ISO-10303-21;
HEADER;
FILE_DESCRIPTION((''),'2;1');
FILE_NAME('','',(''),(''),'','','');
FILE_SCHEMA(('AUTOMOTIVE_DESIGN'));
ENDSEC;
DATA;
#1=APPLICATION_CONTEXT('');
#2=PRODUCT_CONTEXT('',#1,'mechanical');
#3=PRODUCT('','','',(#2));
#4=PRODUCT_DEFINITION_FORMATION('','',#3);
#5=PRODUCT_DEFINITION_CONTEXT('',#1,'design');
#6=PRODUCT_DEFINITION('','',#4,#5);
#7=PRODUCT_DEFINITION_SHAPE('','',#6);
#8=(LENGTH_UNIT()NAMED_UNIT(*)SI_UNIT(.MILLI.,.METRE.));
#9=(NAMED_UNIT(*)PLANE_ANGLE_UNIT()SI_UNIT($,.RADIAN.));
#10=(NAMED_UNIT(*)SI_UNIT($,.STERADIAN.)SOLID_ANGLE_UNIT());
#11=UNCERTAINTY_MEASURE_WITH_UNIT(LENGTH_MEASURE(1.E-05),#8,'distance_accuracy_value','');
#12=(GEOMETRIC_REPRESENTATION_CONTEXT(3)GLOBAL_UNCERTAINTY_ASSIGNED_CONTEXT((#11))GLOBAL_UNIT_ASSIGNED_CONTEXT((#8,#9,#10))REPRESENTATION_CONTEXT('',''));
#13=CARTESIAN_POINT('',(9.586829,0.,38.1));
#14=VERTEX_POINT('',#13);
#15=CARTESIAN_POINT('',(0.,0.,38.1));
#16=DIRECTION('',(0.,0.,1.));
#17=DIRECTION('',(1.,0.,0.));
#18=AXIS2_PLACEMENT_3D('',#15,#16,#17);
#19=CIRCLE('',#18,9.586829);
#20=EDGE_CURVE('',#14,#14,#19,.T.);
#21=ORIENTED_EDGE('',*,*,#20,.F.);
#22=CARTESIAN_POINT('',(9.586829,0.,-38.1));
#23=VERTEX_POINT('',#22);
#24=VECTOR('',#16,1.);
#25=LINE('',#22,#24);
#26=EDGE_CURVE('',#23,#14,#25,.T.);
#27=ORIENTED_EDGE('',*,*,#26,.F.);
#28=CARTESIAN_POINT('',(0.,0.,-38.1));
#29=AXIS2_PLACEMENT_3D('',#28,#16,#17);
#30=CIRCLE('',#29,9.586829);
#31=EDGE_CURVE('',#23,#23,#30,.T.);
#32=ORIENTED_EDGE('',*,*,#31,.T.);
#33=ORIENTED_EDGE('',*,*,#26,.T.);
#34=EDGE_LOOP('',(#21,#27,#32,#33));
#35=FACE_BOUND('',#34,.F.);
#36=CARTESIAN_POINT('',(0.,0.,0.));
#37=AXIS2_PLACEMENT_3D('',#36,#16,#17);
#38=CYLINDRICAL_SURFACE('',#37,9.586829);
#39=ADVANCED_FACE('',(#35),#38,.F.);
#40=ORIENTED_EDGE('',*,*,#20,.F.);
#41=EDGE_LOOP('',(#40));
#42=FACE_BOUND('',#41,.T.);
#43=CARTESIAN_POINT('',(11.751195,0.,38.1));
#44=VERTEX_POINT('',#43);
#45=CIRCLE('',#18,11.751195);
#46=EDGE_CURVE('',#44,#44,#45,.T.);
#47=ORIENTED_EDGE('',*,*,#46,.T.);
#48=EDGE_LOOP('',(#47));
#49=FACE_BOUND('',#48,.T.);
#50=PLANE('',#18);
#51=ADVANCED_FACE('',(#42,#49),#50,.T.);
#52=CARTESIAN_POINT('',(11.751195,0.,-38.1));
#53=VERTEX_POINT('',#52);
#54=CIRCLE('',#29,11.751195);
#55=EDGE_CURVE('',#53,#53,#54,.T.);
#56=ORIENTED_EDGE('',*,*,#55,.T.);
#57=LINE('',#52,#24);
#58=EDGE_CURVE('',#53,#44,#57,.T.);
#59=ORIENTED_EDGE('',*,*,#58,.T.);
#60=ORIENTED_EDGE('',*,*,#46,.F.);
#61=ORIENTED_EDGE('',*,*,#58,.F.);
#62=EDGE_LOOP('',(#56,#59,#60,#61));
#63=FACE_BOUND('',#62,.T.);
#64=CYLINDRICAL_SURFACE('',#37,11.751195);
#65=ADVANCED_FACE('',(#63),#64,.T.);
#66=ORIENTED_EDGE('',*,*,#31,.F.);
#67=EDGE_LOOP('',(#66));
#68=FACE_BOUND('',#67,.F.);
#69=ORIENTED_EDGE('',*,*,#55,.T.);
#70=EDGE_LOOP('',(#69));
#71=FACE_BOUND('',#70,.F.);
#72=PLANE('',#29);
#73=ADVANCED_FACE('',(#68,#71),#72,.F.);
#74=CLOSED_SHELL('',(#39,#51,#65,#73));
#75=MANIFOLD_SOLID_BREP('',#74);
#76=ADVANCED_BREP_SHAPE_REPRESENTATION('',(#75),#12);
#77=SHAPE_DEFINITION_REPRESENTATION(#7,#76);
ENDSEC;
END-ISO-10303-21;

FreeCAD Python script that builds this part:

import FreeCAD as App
import Part
import Sketcher
from FreeCAD import Vector
Q = App.Units.Quantity

doc = App.newDocument("Part")
params = doc.addObject("Spreadsheet::Sheet", "Params")
for row, (alias, value) in enumerate([
    ("pad1_length", "3 in"),
    ("pocket1_length", "3 in"),
], start=1):
    params.set(f"A{row}", alias)
    params.set(f"B{row}", "=" + value)
    params.setAlias(f"B{row}", alias)

body = doc.addObject("PartDesign::Body", "Body")

# Sketch on XY plane
sketch1 = body.newObject("Sketcher::SketchObject", "Sketch")
sketch1.AttachmentSupport = (doc.getObject("XY_Plane"), [""])
sketch1.MapMode = "FlatFace"
sketch1.addGeometry(Part.Circle(Vector(0, 0, 0), Vector(0, 0, 1), 12), False)
sketch1.addConstraint([
    Sketcher.Constraint("Coincident", 0, 3, -1, 1),
    Sketcher.Constraint("Diameter", 0, Q("23.50239 mm")),
])
pad1 = body.newObject("PartDesign::Pad", "Pad")
pad1.Profile = sketch1
pad1.setExpression("Length", "Params.pad1_length")
pad1.Midplane = True

# Sketch on XY plane
sketch2 = body.newObject("Sketcher::SketchObject", "Sketch001")
sketch2.AttachmentSupport = (doc.getObject("XY_Plane"), [""])
sketch2.MapMode = "FlatFace"
sketch2.addGeometry(Part.Circle(Vector(0, 0, 0), Vector(0, 0, 1), 10), False)
sketch2.addConstraint([
    Sketcher.Constraint("Coincident", 0, 3, -1, 1),
    Sketcher.Constraint("Diameter", 0, Q("19.173658 mm")),
])
pocket1 = body.newObject("PartDesign::Pocket", "Pocket")
pocket1.Profile = sketch2
pocket1.setExpression("Length", "Params.pocket1_length")
pocket1.Midplane = True

doc.recompute()
